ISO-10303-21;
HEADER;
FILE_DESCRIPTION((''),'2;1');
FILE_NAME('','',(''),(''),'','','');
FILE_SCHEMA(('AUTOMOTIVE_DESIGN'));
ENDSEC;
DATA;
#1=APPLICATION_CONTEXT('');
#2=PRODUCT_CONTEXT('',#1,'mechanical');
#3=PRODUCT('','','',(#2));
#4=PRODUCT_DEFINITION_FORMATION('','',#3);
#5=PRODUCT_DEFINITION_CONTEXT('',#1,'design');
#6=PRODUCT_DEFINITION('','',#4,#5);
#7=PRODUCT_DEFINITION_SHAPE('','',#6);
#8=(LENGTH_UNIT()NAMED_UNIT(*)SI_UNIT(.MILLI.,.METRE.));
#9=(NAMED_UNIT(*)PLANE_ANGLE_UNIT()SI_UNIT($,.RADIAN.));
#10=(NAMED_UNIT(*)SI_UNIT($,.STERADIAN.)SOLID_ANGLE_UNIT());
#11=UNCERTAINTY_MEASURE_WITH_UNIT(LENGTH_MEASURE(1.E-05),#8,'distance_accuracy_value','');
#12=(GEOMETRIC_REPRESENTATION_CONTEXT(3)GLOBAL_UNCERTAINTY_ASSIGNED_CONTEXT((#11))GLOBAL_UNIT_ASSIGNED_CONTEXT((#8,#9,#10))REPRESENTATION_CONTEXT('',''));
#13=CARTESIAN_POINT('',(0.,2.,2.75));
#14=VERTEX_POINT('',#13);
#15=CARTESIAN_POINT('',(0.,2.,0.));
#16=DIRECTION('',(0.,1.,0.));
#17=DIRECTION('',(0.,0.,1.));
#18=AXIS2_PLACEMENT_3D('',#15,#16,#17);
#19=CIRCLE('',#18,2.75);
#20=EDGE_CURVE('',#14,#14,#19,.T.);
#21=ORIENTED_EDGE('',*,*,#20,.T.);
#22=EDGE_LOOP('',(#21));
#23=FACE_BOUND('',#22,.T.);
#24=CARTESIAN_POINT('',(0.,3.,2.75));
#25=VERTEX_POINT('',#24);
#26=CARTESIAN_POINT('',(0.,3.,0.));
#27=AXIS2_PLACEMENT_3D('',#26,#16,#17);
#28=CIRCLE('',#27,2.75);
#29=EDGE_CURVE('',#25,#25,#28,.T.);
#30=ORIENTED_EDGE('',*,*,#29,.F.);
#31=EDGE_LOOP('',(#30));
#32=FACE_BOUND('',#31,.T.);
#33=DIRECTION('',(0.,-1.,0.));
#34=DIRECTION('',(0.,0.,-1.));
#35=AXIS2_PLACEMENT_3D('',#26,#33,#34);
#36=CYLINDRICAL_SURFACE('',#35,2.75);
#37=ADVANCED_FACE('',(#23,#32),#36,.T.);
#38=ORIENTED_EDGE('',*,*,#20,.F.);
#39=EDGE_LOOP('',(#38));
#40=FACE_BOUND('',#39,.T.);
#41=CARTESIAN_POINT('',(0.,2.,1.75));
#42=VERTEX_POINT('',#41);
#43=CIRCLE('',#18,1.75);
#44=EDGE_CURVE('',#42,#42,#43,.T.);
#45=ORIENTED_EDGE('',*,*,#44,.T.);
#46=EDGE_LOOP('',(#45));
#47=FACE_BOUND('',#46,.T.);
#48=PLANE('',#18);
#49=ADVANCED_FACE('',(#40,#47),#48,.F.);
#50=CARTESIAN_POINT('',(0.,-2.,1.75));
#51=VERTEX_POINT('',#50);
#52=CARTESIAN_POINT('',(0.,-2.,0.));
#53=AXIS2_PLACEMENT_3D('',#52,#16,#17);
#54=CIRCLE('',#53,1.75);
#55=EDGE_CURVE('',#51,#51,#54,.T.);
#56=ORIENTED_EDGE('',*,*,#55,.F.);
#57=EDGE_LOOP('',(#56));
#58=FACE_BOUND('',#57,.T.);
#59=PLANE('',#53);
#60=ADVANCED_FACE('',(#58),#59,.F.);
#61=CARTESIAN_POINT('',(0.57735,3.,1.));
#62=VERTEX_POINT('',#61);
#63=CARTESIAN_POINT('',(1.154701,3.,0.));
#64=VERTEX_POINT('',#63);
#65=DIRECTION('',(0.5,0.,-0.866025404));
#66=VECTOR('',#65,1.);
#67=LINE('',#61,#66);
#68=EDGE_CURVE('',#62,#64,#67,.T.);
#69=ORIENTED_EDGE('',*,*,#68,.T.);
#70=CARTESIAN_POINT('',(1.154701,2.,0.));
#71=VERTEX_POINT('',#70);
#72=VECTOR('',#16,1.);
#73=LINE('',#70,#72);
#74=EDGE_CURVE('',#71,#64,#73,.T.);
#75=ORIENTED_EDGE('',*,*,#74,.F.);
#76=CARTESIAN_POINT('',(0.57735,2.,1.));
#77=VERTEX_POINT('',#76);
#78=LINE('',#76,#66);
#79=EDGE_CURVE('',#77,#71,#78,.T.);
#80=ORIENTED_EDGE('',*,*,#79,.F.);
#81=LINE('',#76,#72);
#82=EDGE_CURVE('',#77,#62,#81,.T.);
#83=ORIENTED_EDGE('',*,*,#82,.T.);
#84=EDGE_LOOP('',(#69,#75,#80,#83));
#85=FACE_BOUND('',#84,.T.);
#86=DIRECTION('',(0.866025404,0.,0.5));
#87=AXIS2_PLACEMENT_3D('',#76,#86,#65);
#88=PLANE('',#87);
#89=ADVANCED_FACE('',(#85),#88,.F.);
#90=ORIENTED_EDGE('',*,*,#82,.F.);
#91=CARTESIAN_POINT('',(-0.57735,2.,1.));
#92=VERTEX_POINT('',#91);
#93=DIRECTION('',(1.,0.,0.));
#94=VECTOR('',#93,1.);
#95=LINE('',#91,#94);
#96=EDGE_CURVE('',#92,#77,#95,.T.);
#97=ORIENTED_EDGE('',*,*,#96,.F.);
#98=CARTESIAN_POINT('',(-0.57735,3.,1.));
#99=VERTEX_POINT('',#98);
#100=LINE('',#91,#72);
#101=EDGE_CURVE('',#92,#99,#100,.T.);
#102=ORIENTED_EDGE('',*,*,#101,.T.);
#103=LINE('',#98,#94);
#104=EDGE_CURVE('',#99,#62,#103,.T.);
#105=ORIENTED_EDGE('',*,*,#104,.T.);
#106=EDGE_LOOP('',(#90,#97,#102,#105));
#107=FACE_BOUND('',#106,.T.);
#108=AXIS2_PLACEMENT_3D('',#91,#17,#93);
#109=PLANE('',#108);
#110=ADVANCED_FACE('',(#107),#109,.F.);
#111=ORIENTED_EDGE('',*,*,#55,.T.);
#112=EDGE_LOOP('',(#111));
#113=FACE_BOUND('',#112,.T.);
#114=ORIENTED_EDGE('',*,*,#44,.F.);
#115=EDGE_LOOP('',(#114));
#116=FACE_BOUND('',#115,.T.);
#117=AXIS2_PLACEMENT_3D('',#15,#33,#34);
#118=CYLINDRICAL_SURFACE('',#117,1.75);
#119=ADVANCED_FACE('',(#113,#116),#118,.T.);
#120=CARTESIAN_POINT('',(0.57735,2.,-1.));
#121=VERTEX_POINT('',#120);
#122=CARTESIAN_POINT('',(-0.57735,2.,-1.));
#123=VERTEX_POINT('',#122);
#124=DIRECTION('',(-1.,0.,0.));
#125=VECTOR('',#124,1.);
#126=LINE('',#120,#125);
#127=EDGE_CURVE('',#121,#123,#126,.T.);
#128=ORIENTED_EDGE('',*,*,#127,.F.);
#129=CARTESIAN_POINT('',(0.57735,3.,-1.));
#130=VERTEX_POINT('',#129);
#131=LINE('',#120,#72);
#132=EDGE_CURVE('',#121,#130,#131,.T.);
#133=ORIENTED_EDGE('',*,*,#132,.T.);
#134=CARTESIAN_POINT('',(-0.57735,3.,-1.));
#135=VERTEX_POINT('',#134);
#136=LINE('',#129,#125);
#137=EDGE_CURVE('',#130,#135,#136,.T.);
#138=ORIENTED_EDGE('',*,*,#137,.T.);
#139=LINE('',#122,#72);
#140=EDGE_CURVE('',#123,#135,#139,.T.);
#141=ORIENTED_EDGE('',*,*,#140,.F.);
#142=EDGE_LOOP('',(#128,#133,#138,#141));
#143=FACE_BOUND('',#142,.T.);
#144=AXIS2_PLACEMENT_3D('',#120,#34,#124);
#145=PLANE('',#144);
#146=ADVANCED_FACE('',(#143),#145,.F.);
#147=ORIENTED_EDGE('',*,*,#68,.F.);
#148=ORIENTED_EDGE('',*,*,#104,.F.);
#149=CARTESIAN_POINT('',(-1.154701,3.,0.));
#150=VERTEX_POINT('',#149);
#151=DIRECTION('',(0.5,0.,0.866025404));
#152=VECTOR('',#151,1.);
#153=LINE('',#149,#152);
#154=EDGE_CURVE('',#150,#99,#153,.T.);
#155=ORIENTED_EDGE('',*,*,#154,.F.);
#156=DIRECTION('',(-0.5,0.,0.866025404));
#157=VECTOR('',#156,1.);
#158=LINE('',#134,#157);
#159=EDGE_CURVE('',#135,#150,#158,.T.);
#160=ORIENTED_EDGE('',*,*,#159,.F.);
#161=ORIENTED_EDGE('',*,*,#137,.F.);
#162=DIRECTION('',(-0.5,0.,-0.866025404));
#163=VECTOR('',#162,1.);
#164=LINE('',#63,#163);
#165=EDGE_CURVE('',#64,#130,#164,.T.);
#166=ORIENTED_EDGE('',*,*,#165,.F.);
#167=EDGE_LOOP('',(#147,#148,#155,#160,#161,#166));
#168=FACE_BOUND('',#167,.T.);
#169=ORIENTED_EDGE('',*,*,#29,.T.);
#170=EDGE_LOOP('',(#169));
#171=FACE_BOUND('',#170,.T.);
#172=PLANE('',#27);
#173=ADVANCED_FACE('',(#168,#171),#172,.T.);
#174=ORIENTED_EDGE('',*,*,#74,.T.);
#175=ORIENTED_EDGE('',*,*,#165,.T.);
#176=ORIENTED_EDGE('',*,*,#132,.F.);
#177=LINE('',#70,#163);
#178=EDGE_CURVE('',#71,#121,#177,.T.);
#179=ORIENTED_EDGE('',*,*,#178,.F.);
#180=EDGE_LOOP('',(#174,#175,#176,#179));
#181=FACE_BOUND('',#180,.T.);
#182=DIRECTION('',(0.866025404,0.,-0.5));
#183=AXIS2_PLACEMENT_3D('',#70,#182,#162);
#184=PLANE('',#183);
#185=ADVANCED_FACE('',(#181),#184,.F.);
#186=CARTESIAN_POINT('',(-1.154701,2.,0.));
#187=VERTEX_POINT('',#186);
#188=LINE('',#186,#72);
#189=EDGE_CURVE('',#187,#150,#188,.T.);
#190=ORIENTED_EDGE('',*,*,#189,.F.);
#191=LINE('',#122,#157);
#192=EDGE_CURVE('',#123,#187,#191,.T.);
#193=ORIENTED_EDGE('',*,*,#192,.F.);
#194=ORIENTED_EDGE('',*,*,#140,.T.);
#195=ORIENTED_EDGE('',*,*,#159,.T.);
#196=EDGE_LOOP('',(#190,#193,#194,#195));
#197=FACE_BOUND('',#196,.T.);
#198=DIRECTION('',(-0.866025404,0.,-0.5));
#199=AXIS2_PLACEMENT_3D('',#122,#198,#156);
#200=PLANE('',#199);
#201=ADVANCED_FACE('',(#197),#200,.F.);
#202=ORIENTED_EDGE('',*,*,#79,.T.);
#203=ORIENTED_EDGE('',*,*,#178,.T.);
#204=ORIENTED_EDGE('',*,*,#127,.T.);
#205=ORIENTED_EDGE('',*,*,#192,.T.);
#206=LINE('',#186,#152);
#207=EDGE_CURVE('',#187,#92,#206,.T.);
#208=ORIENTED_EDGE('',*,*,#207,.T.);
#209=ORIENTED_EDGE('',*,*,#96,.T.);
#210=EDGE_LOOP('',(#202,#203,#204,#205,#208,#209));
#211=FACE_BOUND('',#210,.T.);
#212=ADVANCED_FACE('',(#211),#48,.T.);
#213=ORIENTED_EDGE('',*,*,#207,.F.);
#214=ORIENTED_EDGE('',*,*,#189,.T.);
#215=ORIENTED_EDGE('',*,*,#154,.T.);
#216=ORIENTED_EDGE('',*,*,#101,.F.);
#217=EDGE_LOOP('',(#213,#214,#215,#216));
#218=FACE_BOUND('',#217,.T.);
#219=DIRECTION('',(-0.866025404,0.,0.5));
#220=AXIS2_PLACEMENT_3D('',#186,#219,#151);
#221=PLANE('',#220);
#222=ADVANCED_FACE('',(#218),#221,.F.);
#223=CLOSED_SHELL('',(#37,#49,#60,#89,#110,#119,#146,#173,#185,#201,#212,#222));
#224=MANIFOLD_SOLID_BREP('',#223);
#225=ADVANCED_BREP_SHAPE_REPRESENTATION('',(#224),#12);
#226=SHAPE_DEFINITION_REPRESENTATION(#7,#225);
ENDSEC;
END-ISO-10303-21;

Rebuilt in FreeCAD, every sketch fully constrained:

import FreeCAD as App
import Part
import Sketcher
from FreeCAD import Vector
Q = App.Units.Quantity

doc = App.newDocument("Part")
body = doc.addObject("PartDesign::Body", "Body")

# Sketch on XZ plane
sketch1 = body.newObject("Sketcher::SketchObject", "Sketch")
sketch1.AttachmentSupport = (doc.getObject("XZ_Plane"), [""])
sketch1.MapMode = "FlatFace"
sketch1.addGeometry(Part.Circle(Vector(0, 0, 0), Vector(0, 0, 1), 1.75), False)
sketch1.addConstraint([
    Sketcher.Constraint("Coincident", 0, 3, -1, 1),
    Sketcher.Constraint("Diameter", 0, 3.5),
])
pad1 = body.newObject("PartDesign::Pad", "Pad")
pad1.Profile = sketch1
pad1.Length = 4
pad1.Midplane = True

# Sketch on XZ plane
sketch2 = body.newObject("Sketcher::SketchObject", "Sketch001")
sketch2.AttachmentSupport = (doc.getObject("XZ_Plane"), [""])
sketch2.MapMode = "FlatFace"
sketch2.AttachmentOffset = App.Placement(Vector(0, 0, -2), App.Rotation())
sketch2.addGeometry(Part.Circle(Vector(0, 0, 0), Vector(0, 0, 1), 2.75), False)
sketch2.addConstraint([
    Sketcher.Constraint("Coincident", 0, 3, -1, 1),
    Sketcher.Constraint("Diameter", 0, 5.5),
])
pad2 = body.newObject("PartDesign::Pad", "Pad001")
pad2.Profile = sketch2
pad2.Length = 1
pad2.Reversed = True

# Sketch on XZ plane
sketch3 = body.newObject("Sketcher::SketchObject", "Sketch002")
sketch3.AttachmentSupport = (doc.getObject("XZ_Plane"), [""])
sketch3.MapMode = "FlatFace"
sketch3.AttachmentOffset = App.Placement(Vector(0, 0, -3), App.Rotation())
sketch3.addGeometry([
    Part.LineSegment(Vector(1.154701, 0, 0), Vector(0.57735, -1, 0)),  # 0
    Part.LineSegment(Vector(0.57735, -1, 0), Vector(-0.57735, -1, 0)),  # 1
    Part.LineSegment(Vector(-0.57735, -1, 0), Vector(-1.154701, 0, 0)),  # 2
    Part.LineSegment(Vector(-1.154701, 0, 0), Vector(-0.57735, 1, 0)),  # 3
    Part.LineSegment(Vector(-0.57735, 1, 0), Vector(0.57735, 1, 0)),  # 4
    Part.LineSegment(Vector(0.57735, 1, 0), Vector(1.154701, 0, 0)),  # 5
], False)
sketch3.addConstraint([
    Sketcher.Constraint("Coincident", 0, 2, 1, 1),
    Sketcher.Constraint("Coincident", 1, 2, 2, 1),
    Sketcher.Constraint("Coincident", 2, 2, 3, 1),
    Sketcher.Constraint("Coincident", 3, 2, 4, 1),
    Sketcher.Constraint("Coincident", 4, 2, 5, 1),
    Sketcher.Constraint("Coincident", 5, 2, 0, 1),
    Sketcher.Constraint("Horizontal", 1),
    Sketcher.Constraint("Horizontal", 4),
    Sketcher.Constraint("Symmetric", 0, 2, 3, 2, -1, 1),
    Sketcher.Constraint("Symmetric", 2, 2, 5, 2, -1, 1),
    Sketcher.Constraint("PointOnObject", 2, 2, -1),
    Sketcher.Constraint("Parallel", 2, 5),
    Sketcher.Constraint("Vertical", 1, 2, 3, 2),
    Sketcher.Constraint("Angle", 0, Q("-120 deg")),
    Sketcher.Constraint("DistanceY", 0, 2, -1, 1, 1.0),
    Sketcher.Constraint("DistanceX", 1, 2, 1, 1, 1.154701),
])
pocket1 = body.newObject("PartDesign::Pocket", "Pocket")
pocket1.Profile = sketch3
pocket1.Length = 1
pocket1.Reversed = True

doc.recompute()
